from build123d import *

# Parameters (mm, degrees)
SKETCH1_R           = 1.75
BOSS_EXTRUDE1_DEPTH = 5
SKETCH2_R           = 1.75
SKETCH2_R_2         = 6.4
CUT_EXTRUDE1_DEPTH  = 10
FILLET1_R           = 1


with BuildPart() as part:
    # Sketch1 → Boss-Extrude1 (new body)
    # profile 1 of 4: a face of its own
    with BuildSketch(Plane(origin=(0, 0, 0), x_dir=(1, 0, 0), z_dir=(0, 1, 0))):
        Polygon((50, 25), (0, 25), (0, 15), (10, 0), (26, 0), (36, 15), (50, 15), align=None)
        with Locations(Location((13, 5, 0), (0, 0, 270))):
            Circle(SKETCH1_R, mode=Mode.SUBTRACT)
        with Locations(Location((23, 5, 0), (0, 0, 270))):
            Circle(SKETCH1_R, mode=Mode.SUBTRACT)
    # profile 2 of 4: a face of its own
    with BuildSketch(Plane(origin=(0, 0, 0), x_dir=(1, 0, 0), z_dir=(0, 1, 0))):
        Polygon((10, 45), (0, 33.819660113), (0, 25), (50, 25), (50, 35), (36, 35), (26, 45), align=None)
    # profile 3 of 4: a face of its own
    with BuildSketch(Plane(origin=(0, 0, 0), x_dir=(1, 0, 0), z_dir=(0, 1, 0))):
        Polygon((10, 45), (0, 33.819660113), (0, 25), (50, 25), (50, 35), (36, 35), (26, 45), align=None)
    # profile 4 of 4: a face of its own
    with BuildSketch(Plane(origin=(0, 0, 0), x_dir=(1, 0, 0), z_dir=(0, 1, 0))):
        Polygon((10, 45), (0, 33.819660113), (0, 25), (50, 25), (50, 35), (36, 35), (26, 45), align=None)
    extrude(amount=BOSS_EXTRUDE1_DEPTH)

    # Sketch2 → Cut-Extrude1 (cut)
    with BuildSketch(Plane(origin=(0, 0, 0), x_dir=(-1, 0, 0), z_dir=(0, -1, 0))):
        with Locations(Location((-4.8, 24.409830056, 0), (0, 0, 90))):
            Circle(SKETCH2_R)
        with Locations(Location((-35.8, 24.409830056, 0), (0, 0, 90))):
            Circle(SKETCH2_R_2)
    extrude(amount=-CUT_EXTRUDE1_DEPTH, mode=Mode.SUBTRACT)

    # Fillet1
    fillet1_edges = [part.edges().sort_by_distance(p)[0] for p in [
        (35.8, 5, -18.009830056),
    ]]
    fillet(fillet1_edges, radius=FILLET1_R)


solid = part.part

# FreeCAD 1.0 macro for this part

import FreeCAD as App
import Part
import Sketcher

V = App.Vector
Q = App.Units.Quantity


def edges_at(feature, points):
    """Names of the edges that pass closest to the given points."""
    edges = feature.Shape.Edges
    near = lambda p: min(range(len(edges)), key=lambda i: edges[i].distToShape(Part.Vertex(*p))[0])
    return sorted({f"Edge{near(p) + 1}" for p in points})


def add_polygon(sketch, points):
    """Adds a closed chain of lines whose ends are joined by coincident constraints."""
    first, n = sketch.GeometryCount, len(points)
    for a, b in zip(points, points[1:] + points[:1]):
        sketch.addGeometry(Part.LineSegment(App.Vector(*a, 0), App.Vector(*b, 0)), False)
    for i in range(n):
        sketch.addConstraint(Sketcher.Constraint("Coincident", first + i, 2, first + (i + 1) % n, 1))

doc = App.newDocument("Part")
body = doc.addObject("PartDesign::Body", "Body")

sketch1 = doc.addObject("Sketcher::SketchObject", "Sketch")
body.addObject(sketch1)
sketch1.AttachmentSupport = (doc.XZ_Plane, [""])
sketch1.MapMode = "FlatFace"
add_polygon(sketch1, [(50, -15), (50, -35), (36, -35), (26, -45), (10, -45), (0, -33.81966), (0, -15), (10, 0), (26, 0), (36, -15)])
sketch1.addGeometry(Part.Circle(V(13, -5, 0), V(0, 0, 1), 1.75), False)
sketch1.addGeometry(Part.Circle(V(23, -5, 0), V(0, 0, 1), 1.75), False)
sketch1.addConstraint(Sketcher.Constraint("Vertical", 0))
sketch1.addConstraint(Sketcher.Constraint("Horizontal", 1))
sketch1.addConstraint(Sketcher.Constraint("Horizontal", 3))
sketch1.addConstraint(Sketcher.Constraint("Vertical", 5))
sketch1.addConstraint(Sketcher.Constraint("Horizontal", 7))
sketch1.addConstraint(Sketcher.Constraint("Horizontal", 9))
sketch1.addConstraint(Sketcher.Constraint("Equal", 10, 11))
sketch1.addConstraint(Sketcher.Constraint("PointOnObject", 4, 2, -2))
sketch1.addConstraint(Sketcher.Constraint("PointOnObject", 6, 2, -1))
sketch1.addConstraint(Sketcher.Constraint("Horizontal", 10, 3, 11, 3))
sketch1.addConstraint(Sketcher.Constraint("Horizontal", 5, 2, 8, 2))
sketch1.addConstraint(Sketcher.Constraint("Vertical", 3, 2, 6, 2))
sketch1.addConstraint(Sketcher.Constraint("Vertical", 2, 2, 7, 2))
sketch1.addConstraint(Sketcher.Constraint("Vertical", 1, 2, 8, 2))
sketch1.addConstraint(Sketcher.Constraint("Equal", 6, 8))
sketch1.addConstraint(Sketcher.Constraint("Diameter", 10, 3.5))
sketch1.addConstraint(Sketcher.Constraint("DistanceX", 1, 2, 1, 1, 14.0))
sketch1.addConstraint(Sketcher.Constraint("DistanceX", 3, 2, 3, 1, 16.0))
sketch1.addConstraint(Sketcher.Constraint("DistanceY", 0, 2, 0, 1, 20.0))
sketch1.addConstraint(Sketcher.Constraint("Angle", 2, Q("-135 deg")))
sketch1.addConstraint(Sketcher.Constraint("Distance", 4, 15.0))
sketch1.addConstraint(Sketcher.Constraint("DistanceX", -1, 1, 10, 3, 13.0))
sketch1.addConstraint(Sketcher.Constraint("DistanceY", 10, 3, -1, 1, 5.0))
sketch1.addConstraint(Sketcher.Constraint("DistanceX", -1, 1, 11, 3, 23.0))
sketch1.addConstraint(Sketcher.Constraint("DistanceX", -1, 1, 0, 2, 50.0))
sketch1.addConstraint(Sketcher.Constraint("DistanceY", 0, 2, -1, 1, 35.0))
pad1 = doc.addObject("PartDesign::Pad", "Pad")
body.addObject(pad1)
pad1.Profile = sketch1
pad1.Length = 5
pad1.Reversed = True

sketch2 = doc.addObject("Sketcher::SketchObject", "Sketch001")
body.addObject(sketch2)
sketch2.AttachmentSupport = (doc.XZ_Plane, [""])
sketch2.MapMode = "FlatFace"
sketch2.addGeometry(Part.Circle(V(4.8, -24.40983, 0), V(0, 0, 1), 1.75), False)
sketch2.addGeometry(Part.Circle(V(35.8, -24.40983, 0), V(0, 0, 1), 6.4), False)
sketch2.addConstraint(Sketcher.Constraint("Horizontal", 0, 3, 1, 3))
sketch2.addConstraint(Sketcher.Constraint("Diameter", 0, 3.5))
sketch2.addConstraint(Sketcher.Constraint("Diameter", 1, 12.8))
sketch2.addConstraint(Sketcher.Constraint("DistanceX", 0, 3, 1, 3, 31.0))
sketch2.addConstraint(Sketcher.Constraint("DistanceX", -1, 1, 0, 3, 4.8))
sketch2.addConstraint(Sketcher.Constraint("DistanceY", 0, 3, -1, 1, 24.40983))
pocket1 = doc.addObject("PartDesign::Pocket", "Pocket")
body.addObject(pocket1)
pocket1.Profile = sketch2
pocket1.Length = 10
doc.recompute()

fillet = doc.addObject("PartDesign::Fillet", "Fillet")
body.addObject(fillet)
fillet.Base = (pocket1, edges_at(pocket1, [(35.8, 5, -18.01)]))
fillet.Radius = 1

doc.recompute()
